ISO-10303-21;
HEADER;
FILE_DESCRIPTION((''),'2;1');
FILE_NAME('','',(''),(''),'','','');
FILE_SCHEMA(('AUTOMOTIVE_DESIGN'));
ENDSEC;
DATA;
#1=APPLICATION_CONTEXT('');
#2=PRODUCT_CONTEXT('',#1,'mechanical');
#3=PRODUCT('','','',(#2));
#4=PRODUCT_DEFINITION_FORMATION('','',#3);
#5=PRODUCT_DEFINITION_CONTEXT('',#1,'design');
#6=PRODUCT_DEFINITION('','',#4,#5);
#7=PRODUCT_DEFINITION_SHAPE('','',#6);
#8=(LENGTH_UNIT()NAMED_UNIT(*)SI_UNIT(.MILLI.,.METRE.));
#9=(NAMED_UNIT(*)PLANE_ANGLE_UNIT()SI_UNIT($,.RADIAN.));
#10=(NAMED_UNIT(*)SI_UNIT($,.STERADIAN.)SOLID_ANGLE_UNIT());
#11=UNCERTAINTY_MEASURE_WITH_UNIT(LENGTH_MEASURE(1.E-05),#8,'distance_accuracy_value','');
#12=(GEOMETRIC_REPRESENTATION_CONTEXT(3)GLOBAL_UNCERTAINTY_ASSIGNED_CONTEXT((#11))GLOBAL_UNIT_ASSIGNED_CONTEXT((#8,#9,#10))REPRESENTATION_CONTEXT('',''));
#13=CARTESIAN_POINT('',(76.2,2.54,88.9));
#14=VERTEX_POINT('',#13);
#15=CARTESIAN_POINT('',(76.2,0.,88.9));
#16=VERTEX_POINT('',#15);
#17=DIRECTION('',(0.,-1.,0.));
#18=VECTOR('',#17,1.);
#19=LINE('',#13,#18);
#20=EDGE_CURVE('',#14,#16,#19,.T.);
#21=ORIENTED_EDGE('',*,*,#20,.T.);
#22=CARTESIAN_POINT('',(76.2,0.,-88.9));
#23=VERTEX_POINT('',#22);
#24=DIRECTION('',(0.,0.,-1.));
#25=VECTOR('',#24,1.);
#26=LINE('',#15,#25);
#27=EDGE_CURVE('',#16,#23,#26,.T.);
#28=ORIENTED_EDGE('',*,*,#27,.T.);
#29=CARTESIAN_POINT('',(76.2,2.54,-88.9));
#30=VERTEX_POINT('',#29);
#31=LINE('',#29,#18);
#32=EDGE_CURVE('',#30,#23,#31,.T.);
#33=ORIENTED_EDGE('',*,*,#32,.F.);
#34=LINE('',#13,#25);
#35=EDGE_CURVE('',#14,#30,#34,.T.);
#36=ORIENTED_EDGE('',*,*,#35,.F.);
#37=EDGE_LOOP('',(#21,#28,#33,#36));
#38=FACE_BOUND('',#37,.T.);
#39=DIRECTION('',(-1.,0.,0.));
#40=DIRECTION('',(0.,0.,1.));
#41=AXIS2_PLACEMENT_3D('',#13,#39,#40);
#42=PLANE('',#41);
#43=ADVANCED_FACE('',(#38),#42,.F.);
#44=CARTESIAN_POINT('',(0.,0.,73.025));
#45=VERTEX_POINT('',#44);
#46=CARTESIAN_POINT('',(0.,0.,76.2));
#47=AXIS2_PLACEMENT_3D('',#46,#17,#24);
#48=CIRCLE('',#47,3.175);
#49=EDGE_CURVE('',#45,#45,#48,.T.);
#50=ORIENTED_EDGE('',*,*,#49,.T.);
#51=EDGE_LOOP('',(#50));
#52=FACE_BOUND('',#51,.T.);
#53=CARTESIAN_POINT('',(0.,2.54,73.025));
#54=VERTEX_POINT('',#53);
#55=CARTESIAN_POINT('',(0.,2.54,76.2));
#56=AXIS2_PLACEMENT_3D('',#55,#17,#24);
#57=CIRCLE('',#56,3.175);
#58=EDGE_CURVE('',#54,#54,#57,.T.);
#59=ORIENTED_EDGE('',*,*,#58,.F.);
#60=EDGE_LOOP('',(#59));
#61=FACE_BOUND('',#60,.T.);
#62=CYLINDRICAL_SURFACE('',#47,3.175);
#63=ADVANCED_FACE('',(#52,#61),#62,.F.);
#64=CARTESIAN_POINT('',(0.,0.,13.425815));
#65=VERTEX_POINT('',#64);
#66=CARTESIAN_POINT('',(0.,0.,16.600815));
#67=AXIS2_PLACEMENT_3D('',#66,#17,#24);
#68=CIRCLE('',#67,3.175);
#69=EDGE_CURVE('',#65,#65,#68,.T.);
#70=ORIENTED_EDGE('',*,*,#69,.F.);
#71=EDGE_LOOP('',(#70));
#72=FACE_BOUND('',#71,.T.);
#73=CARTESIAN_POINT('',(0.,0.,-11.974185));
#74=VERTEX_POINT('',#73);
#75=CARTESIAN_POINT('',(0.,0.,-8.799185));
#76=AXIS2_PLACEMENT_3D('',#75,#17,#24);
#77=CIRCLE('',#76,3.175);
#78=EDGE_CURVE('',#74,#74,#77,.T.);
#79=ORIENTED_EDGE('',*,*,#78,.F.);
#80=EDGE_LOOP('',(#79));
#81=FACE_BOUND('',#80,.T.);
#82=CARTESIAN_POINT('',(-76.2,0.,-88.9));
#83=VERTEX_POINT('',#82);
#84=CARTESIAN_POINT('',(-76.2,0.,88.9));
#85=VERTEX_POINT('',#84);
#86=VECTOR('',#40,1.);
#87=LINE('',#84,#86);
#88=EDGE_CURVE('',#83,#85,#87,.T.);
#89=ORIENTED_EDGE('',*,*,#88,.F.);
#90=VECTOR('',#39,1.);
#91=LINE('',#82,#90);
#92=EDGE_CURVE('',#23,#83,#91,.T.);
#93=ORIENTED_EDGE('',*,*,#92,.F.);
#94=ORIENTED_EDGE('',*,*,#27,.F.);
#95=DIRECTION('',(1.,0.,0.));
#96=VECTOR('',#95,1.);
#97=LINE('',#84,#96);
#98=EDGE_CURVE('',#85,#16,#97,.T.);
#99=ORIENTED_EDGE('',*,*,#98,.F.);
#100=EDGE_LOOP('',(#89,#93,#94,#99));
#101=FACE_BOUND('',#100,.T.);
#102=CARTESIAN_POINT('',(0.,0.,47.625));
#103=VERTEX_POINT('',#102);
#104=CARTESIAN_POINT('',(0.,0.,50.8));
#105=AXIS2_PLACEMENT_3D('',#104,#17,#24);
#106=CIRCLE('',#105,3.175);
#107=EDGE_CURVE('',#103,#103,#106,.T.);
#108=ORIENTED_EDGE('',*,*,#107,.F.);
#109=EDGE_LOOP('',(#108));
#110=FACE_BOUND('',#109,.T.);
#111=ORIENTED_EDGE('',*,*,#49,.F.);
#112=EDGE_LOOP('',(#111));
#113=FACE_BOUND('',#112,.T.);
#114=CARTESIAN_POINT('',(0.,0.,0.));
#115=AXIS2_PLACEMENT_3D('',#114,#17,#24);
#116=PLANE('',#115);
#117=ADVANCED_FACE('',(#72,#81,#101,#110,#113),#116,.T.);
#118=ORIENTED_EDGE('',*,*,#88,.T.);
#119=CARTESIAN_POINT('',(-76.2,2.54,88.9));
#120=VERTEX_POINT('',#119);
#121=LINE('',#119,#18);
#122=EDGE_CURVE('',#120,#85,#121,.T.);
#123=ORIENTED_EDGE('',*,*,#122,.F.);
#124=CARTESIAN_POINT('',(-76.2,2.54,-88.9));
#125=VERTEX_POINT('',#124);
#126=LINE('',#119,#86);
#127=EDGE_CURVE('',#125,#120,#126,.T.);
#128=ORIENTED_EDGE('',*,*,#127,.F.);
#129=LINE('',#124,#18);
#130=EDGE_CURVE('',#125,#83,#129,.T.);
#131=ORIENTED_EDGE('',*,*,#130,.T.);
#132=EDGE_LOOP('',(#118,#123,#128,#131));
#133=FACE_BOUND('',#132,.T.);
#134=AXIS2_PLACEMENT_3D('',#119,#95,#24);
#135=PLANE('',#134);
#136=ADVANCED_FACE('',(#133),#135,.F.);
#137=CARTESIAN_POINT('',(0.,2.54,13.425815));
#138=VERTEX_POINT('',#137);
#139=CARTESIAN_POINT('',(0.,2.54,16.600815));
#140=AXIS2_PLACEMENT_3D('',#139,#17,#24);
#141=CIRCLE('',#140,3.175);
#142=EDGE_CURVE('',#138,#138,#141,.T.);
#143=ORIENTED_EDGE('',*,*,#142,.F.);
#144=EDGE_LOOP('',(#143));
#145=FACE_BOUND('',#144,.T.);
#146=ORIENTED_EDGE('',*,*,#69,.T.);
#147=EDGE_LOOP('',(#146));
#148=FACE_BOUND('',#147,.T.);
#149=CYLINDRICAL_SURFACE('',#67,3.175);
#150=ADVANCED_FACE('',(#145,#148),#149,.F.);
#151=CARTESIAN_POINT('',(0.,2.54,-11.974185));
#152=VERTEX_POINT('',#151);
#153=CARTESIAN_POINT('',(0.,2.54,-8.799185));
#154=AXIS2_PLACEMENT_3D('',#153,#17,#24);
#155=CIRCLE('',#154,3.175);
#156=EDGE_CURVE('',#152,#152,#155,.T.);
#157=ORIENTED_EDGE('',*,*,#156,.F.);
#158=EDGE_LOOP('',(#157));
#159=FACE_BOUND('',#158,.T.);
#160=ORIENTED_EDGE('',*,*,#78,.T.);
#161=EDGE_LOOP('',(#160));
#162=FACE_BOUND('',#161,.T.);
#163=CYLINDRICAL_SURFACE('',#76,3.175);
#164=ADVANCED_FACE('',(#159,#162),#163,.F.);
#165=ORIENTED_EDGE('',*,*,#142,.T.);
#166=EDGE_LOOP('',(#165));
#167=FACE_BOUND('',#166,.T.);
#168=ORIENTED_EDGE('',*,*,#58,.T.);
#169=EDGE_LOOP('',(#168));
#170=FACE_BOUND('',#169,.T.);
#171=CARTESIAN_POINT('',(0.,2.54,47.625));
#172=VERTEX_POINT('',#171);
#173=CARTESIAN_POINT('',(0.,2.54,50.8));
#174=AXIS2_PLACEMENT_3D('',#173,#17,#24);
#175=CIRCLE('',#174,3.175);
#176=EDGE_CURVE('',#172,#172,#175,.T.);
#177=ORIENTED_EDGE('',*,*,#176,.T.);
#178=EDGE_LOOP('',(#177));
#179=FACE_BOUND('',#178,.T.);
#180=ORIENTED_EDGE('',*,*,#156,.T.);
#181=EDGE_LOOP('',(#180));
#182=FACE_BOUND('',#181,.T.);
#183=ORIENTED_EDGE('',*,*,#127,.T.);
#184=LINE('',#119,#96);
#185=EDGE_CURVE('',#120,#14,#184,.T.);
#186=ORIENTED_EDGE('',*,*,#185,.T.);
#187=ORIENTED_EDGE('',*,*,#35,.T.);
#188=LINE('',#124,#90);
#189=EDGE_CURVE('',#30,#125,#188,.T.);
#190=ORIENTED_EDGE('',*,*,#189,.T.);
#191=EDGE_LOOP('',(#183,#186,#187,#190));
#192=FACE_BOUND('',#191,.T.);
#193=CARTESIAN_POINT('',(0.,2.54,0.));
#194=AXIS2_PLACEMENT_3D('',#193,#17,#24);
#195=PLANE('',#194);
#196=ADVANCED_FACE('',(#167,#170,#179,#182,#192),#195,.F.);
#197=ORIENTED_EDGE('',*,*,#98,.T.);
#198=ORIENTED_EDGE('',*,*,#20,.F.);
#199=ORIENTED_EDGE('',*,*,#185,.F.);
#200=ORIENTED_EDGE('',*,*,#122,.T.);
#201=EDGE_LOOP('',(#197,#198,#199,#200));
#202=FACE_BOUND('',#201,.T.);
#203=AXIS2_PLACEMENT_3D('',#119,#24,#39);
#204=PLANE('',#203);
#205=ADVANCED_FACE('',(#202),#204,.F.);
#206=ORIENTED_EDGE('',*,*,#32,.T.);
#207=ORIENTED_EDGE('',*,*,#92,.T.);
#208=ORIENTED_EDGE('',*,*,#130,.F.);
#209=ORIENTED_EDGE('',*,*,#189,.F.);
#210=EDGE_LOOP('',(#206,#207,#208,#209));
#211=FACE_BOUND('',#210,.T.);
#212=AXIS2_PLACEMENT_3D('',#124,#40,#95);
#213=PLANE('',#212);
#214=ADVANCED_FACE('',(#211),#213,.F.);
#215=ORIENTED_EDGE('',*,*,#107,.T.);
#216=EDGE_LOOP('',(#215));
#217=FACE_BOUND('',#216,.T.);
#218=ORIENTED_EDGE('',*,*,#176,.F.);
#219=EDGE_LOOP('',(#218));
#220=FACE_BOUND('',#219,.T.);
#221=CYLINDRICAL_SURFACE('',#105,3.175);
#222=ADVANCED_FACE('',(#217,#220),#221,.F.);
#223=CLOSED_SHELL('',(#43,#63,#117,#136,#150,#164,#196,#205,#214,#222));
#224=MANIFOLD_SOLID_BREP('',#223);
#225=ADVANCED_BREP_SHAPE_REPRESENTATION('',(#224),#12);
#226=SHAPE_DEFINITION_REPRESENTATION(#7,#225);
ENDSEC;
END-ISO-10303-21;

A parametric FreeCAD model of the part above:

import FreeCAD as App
import Part
import Sketcher
from FreeCAD import Vector
Q = App.Units.Quantity

doc = App.newDocument("Part")
body = doc.addObject("PartDesign::Body", "Body")

# Sketch on XZ plane
sketch1 = body.newObject("Sketcher::SketchObject", "Sketch")
sketch1.AttachmentSupport = (doc.getObject("XZ_Plane"), [""])
sketch1.MapMode = "FlatFace"
sketch1.addGeometry([
    Part.LineSegment(Vector(-76.2, -88.9, 0), Vector(-76.2, 88.9, 0)),
    Part.LineSegment(Vector(-76.2, 88.9, 0), Vector(76.2, 88.9, 0)),
    Part.LineSegment(Vector(76.2, 88.9, 0), Vector(76.2, -88.9, 0)),
    Part.LineSegment(Vector(76.2, -88.9, 0), Vector(-76.2, -88.9, 0)),
], False)
sketch1.addConstraint([
    Sketcher.Constraint("Coincident", 0, 2, 1, 1),
    Sketcher.Constraint("Coincident", 1, 2, 2, 1),
    Sketcher.Constraint("Coincident", 2, 2, 3, 1),
    Sketcher.Constraint("Coincident", 3, 2, 0, 1),
    Sketcher.Constraint("Vertical", 0),
    Sketcher.Constraint("Horizontal", 1),
    Sketcher.Constraint("Vertical", 2),
    Sketcher.Constraint("Horizontal", 3),
    Sketcher.Constraint("Symmetric", 0, 2, 2, 2, -1, 1),
    Sketcher.Constraint("DistanceX", 1, 1, 1, 2, Q("6 in")),
    Sketcher.Constraint("DistanceY", 0, 1, 0, 2, Q("7 in")),
])
pad1 = body.newObject("PartDesign::Pad", "Pad")
pad1.Profile = sketch1
pad1.Length = Q("0.1 in")
pad1.Reversed = True

# Sketch on XZ plane
sketch2 = body.newObject("Sketcher::SketchObject", "Sketch001")
sketch2.AttachmentSupport = (doc.getObject("XZ_Plane"), [""])
sketch2.MapMode = "FlatFace"
sketch2.addGeometry([
    Part.Circle(Vector(0, 76.2, 0), Vector(0, 0, 1), 3.175),
    Part.Circle(Vector(0, 50.8, 0), Vector(0, 0, 1), 3.175),
    Part.Circle(Vector(0, -8.799185, 0), Vector(0, 0, 1), 3.175),
    Part.Circle(Vector(0, 16.600815, 0), Vector(0, 0, 1), 3.175),
], False)
sketch2.addConstraint([
    Sketcher.Constraint("Equal", 0, 1),
    Sketcher.Constraint("Equal", 1, 2),
    Sketcher.Constraint("Equal", 2, 3),
    Sketcher.Constraint("PointOnObject", 0, 3, -2),
    Sketcher.Constraint("PointOnObject", 1, 3, -2),
    Sketcher.Constraint("PointOnObject", 2, 3, -2),
    Sketcher.Constraint("PointOnObject", 3, 3, -2),
    Sketcher.Constraint("Diameter", 0, Q("0.25 in")),
    Sketcher.Constraint("DistanceY", -1, 1, 0, 3, Q("3 in")),
    Sketcher.Constraint("DistanceY", -1, 1, 1, 3, Q("2 in")),
    Sketcher.Constraint("DistanceY", 2, 3, 3, 3, Q("1 in")),
    Sketcher.Constraint("DistanceY", 2, 3, -1, 1, 8.799185),
])
doc.recompute()
hole = body.newObject("PartDesign::Hole", "Hole")
hole.Profile = sketch2
hole.ThreadType = "None"
hole.Diameter = Q("0.25 in")
hole.DepthType = "ThroughAll"

doc.recompute()
